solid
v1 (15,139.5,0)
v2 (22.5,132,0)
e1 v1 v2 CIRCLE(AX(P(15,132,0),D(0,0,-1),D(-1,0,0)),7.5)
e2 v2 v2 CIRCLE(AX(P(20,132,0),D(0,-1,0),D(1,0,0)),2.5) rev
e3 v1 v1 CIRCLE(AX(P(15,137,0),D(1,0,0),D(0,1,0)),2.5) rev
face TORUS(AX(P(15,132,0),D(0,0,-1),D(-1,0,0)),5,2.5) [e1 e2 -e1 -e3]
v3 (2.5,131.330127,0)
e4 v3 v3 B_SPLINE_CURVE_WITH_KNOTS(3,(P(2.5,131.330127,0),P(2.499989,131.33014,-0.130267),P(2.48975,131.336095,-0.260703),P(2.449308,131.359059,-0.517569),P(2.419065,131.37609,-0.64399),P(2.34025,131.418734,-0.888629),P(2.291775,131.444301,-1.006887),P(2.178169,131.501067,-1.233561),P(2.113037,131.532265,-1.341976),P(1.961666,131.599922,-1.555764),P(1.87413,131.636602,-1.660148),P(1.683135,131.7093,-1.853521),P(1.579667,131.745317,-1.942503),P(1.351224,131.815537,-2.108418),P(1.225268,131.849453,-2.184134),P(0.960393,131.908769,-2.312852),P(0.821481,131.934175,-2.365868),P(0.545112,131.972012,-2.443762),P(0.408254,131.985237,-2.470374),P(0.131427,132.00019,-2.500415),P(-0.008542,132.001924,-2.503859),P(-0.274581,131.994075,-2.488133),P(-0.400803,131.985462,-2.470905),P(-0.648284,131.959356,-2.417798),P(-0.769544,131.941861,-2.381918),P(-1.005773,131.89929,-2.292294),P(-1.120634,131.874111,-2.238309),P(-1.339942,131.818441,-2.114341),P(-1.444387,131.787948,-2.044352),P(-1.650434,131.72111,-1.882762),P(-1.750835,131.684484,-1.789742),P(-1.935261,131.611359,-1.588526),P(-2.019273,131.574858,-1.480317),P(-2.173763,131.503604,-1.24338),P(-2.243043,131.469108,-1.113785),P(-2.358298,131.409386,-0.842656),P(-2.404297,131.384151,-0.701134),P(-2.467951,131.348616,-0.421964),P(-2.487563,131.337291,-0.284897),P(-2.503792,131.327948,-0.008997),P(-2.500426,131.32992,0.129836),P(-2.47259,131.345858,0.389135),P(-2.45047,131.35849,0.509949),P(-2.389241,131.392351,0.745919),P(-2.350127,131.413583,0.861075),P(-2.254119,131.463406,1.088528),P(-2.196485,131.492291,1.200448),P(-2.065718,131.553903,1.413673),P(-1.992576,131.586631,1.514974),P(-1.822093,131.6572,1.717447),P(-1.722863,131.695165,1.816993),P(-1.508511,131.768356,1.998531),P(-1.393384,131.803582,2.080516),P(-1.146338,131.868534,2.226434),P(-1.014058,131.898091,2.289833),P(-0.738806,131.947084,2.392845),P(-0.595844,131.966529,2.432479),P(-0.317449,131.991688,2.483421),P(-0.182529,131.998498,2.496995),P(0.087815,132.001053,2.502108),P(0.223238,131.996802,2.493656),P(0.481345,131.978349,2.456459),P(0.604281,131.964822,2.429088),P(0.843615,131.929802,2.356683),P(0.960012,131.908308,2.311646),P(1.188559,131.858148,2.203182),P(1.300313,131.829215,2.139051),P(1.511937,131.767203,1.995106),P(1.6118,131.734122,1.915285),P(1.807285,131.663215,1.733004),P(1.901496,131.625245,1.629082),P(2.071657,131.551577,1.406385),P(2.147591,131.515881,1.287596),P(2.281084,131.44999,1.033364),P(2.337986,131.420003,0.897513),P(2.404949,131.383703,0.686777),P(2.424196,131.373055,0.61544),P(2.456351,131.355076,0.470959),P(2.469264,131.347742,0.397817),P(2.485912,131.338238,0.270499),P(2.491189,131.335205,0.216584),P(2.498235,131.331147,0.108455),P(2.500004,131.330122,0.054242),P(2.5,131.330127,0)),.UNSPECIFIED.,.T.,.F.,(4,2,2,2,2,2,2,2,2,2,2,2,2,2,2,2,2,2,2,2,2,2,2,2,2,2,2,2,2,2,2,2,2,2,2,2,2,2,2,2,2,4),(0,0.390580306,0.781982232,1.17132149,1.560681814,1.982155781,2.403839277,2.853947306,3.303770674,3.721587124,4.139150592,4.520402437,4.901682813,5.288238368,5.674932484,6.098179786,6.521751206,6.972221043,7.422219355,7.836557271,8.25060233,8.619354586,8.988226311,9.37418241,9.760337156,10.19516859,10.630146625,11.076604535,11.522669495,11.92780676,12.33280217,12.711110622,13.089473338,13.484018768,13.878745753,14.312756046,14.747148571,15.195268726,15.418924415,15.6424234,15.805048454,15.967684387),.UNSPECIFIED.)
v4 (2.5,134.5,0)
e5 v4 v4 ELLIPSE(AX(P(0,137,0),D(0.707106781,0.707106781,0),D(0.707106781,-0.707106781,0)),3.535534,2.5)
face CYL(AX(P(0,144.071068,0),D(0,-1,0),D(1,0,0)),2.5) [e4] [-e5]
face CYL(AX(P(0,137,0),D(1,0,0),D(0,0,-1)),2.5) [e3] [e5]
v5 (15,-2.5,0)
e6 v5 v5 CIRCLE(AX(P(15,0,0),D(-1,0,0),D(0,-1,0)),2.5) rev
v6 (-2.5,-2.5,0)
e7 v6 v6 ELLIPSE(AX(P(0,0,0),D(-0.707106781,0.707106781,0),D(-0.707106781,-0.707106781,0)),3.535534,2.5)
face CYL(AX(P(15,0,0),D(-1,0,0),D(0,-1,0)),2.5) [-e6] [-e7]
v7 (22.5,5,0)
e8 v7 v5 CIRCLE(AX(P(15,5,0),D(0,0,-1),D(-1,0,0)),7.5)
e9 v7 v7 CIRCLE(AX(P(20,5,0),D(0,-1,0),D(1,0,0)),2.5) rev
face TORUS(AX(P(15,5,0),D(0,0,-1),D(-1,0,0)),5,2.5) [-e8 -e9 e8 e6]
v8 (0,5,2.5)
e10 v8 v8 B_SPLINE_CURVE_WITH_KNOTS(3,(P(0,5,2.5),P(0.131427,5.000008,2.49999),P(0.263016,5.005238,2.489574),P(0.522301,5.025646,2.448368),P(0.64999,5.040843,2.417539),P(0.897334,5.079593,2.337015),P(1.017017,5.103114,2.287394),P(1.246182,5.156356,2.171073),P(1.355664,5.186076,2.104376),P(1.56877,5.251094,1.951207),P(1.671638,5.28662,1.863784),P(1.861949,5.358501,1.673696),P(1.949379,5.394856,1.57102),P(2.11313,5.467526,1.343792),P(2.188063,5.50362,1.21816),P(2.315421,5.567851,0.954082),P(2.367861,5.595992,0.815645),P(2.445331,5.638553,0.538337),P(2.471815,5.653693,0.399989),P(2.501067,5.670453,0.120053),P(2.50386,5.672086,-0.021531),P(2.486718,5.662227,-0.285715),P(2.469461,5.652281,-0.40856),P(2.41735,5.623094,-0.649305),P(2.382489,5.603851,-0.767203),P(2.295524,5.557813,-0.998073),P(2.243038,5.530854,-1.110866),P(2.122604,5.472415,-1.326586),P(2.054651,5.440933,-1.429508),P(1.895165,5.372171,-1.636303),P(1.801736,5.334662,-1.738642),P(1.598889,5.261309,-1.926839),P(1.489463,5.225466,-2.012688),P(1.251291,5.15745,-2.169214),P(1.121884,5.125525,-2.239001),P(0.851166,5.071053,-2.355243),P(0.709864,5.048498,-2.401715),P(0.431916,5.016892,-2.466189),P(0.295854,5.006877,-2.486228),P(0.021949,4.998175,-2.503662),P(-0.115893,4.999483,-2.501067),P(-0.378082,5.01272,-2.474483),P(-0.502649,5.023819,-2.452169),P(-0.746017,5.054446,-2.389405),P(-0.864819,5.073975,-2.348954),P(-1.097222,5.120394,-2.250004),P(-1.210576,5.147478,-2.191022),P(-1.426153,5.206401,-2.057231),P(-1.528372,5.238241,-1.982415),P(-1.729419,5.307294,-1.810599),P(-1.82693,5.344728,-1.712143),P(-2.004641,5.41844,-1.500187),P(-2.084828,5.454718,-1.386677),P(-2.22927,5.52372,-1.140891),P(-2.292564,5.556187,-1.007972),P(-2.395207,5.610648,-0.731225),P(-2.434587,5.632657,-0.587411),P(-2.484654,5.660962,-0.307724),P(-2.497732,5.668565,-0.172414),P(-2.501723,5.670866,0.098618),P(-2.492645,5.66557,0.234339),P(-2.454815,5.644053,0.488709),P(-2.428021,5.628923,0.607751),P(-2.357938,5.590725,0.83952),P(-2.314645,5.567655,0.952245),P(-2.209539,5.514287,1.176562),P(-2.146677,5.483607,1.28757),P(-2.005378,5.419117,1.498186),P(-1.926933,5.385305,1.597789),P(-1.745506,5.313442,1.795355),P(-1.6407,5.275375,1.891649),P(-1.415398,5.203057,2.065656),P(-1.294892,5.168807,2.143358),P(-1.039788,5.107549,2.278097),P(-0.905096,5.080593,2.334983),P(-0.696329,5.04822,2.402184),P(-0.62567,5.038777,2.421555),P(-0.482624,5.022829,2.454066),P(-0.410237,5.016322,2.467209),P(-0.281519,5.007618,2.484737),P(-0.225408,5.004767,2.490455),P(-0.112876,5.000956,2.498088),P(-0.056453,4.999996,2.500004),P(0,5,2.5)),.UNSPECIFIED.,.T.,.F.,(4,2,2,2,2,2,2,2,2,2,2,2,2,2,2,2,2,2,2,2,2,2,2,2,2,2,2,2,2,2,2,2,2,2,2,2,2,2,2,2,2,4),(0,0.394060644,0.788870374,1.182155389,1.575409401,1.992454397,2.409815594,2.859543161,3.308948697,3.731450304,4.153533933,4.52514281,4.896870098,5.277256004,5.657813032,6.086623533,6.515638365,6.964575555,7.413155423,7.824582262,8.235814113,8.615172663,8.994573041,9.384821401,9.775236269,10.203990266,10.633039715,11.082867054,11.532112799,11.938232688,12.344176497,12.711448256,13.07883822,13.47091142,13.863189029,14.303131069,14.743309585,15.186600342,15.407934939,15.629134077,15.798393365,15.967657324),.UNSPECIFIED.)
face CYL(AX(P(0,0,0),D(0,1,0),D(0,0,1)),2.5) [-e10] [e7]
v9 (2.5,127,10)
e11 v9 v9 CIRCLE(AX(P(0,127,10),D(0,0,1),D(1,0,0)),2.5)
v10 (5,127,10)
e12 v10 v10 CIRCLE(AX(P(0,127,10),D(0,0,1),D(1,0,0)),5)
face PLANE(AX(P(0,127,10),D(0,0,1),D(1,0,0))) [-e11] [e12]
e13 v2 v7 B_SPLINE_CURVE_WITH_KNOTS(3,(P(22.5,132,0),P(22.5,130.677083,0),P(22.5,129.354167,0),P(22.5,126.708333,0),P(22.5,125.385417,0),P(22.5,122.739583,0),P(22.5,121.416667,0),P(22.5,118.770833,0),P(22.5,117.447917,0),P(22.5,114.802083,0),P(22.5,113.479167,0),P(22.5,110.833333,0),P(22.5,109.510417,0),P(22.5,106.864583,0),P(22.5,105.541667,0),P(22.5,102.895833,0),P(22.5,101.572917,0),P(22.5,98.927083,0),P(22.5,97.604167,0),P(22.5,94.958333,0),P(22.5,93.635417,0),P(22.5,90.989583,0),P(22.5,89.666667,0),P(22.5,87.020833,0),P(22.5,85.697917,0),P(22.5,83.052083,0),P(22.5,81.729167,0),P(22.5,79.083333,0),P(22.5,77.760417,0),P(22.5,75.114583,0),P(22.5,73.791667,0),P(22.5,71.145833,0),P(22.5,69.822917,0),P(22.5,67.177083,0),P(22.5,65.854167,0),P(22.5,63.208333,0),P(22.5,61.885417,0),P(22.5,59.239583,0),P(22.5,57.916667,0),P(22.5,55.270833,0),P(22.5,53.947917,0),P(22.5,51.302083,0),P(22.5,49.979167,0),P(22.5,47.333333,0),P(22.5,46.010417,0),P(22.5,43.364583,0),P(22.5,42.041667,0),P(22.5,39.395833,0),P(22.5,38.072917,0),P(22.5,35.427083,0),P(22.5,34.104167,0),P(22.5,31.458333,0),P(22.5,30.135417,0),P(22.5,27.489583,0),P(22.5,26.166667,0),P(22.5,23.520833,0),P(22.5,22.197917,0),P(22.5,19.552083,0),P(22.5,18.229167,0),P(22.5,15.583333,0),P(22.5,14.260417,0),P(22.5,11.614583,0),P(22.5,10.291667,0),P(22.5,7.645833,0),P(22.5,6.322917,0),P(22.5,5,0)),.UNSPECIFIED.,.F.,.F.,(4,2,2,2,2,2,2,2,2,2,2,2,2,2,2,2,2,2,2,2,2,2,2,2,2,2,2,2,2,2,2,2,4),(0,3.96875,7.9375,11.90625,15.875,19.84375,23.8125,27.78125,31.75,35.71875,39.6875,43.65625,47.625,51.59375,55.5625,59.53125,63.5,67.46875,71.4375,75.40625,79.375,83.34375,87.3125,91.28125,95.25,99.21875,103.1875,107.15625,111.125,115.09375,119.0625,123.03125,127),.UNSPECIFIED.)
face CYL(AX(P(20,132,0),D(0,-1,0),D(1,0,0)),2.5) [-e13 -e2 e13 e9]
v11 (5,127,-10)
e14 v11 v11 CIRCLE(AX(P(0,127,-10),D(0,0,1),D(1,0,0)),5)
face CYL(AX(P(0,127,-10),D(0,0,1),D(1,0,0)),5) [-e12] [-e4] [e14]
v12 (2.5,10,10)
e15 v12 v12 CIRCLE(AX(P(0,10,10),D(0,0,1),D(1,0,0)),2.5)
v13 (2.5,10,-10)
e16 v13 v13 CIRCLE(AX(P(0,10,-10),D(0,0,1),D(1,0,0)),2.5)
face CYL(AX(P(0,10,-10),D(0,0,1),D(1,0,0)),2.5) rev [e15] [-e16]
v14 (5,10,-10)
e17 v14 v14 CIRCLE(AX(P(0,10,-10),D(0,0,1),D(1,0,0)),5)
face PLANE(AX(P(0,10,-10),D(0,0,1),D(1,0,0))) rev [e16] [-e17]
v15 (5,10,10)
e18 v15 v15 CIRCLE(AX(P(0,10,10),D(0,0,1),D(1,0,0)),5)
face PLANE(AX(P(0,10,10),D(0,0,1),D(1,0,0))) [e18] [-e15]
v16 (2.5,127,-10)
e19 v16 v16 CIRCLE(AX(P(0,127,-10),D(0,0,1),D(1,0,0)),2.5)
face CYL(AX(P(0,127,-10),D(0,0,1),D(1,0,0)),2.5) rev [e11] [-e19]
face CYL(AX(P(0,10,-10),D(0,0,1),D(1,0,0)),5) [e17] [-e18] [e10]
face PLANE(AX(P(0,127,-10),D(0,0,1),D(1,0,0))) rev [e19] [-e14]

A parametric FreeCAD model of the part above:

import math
import FreeCAD as App
import Part
import Sketcher

V = App.Vector

doc = App.newDocument("Part")
body = doc.addObject("PartDesign::Body", "Body")

sketch1 = body.newObject("Sketcher::SketchObject", "Sketch")
sketch1.AttachmentSupport = (doc.getObject("XZ_Plane"), [""])
sketch1.MapMode = "FlatFace"
sketch1.AttachmentOffset = App.Placement(V(0, 0, -127), App.Rotation())
sketch1.addGeometry(Part.Circle(V(0, 0, 0), V(0, 0, 1), 2.5), False)
sketch1.addConstraint([
    Sketcher.Constraint("Coincident", 0, 3, -1, 1),
    Sketcher.Constraint("Diameter", 0, 5.0),
])

sketch2 = body.newObject("Sketcher::SketchObject", "Sketch001")
sketch2.AttachmentSupport = (doc.getObject("XY_Plane"), [""])
sketch2.MapMode = "FlatFace"
sketch2.addGeometry([
    Part.LineSegment(V(0, 127, 0), V(0, 137, 0)),
    Part.LineSegment(V(0, 137, 0), V(15, 137, 0)),
    Part.ArcOfCircle(Part.Circle(V(15, 132, 0), V(0, 0, 1), 5), math.radians(0), math.radians(90)),
    Part.LineSegment(V(20, 132, 0), V(20, 5, 0)),
    Part.ArcOfCircle(Part.Circle(V(15, 5, 0), V(0, 0, 1), 5), math.radians(-90), math.radians(0)),
    Part.LineSegment(V(15, 0, 0), V(0, 0, 0)),
    Part.LineSegment(V(0, 0, 0), V(0, 10, 0)),
], False)
sketch2.addConstraint([
    Sketcher.Constraint("Coincident", 0, 2, 1, 1),
    Sketcher.Constraint("Tangent", 1, 2, 2, 2),
    Sketcher.Constraint("Tangent", 2, 1, 3, 1),
    Sketcher.Constraint("Tangent", 3, 2, 4, 2),
    Sketcher.Constraint("Tangent", 4, 1, 5, 1),
    Sketcher.Constraint("Coincident", 5, 2, 6, 1),
    Sketcher.Constraint("Vertical", 0),
    Sketcher.Constraint("Horizontal", 1),
    Sketcher.Constraint("Vertical", 3),
    Sketcher.Constraint("Horizontal", 5),
    Sketcher.Constraint("Vertical", 6),
    Sketcher.Constraint("Coincident", 5, 2, -1, 1),
    Sketcher.Constraint("Equal", 2, 4),
    Sketcher.Constraint("PointOnObject", 0, 1, -2),
    Sketcher.Constraint("Equal", 0, 6),
    Sketcher.Constraint("Radius", 2, 5.0),
    Sketcher.Constraint("DistanceX", 1, 1, 1, 2, 15.0),
    Sketcher.Constraint("DistanceY", 0, 1, 0, 2, 10.0),
    Sketcher.Constraint("DistanceY", 3, 2, 3, 1, 127.0),
])
doc.recompute()

additivepipe = body.newObject("PartDesign::AdditivePipe", "AdditivePipe")
additivepipe.Profile = sketch1
additivepipe.Spine = (sketch2, ["Edge1", "Edge2", "Edge3", "Edge4", "Edge5", "Edge6", "Edge7"])
additivepipe.Transition = "Right corner"

sketch3 = body.newObject("Sketcher::SketchObject", "Sketch002")
sketch3.AttachmentSupport = (doc.getObject("XY_Plane"), [""])
sketch3.MapMode = "FlatFace"
sketch3.addGeometry([
    Part.Circle(V(0, 127, 0), V(0, 0, 1), 5),
    Part.Circle(V(0, 127, 0), V(0, 0, 1), 2.5),
    Part.Circle(V(0, 10, 0), V(0, 0, 1), 5),
    Part.Circle(V(0, 10, 0), V(0, 0, 1), 2.5),
], False)
sketch3.addConstraint([
    Sketcher.Constraint("Coincident", 1, 3, 0, 3),
    Sketcher.Constraint("Coincident", 3, 3, 2, 3),
    Sketcher.Constraint("Equal", 0, 2),
    Sketcher.Constraint("Equal", 1, 3),
    Sketcher.Constraint("PointOnObject", 0, 3, -2),
    Sketcher.Constraint("PointOnObject", 2, 3, -2),
    Sketcher.Constraint("Diameter", 0, 10.0),
    Sketcher.Constraint("Diameter", 1, 5.0),
    Sketcher.Constraint("DistanceY", -1, 1, 0, 3, 127.0),
    Sketcher.Constraint("DistanceY", -1, 1, 2, 3, 10.0),
])
pad1 = body.newObject("PartDesign::Pad", "Pad")
pad1.Profile = sketch3
pad1.Type = "TwoLengths"
pad1.Length = 10
pad1.Length2 = 10

sketch4 = body.newObject("Sketcher::SketchObject", "Sketch003")
sketch4.AttachmentSupport = (doc.getObject("XY_Plane"), [""])
sketch4.MapMode = "FlatFace"
sketch4.AttachmentOffset = App.Placement(V(0, 0, 10), App.Rotation())
sketch4.addGeometry([
    Part.Circle(V(0, 127, 0), V(0, 0, 1), 2.5),
    Part.Circle(V(0, 10, 0), V(0, 0, 1), 2.5),
], False)
sketch4.addConstraint([
    Sketcher.Constraint("Equal", 0, 1),
    Sketcher.Constraint("PointOnObject", 0, 3, -2),
    Sketcher.Constraint("PointOnObject", 1, 3, -2),
    Sketcher.Constraint("Diameter", 0, 5.0),
    Sketcher.Constraint("DistanceY", -1, 1, 0, 3, 127.0),
    Sketcher.Constraint("DistanceY", -1, 1, 1, 3, 10.0),
])
pocket1 = body.newObject("PartDesign::Pocket", "Pocket")
pocket1.Profile = sketch4
pocket1.Type = "ThroughAll"

doc.recompute()
